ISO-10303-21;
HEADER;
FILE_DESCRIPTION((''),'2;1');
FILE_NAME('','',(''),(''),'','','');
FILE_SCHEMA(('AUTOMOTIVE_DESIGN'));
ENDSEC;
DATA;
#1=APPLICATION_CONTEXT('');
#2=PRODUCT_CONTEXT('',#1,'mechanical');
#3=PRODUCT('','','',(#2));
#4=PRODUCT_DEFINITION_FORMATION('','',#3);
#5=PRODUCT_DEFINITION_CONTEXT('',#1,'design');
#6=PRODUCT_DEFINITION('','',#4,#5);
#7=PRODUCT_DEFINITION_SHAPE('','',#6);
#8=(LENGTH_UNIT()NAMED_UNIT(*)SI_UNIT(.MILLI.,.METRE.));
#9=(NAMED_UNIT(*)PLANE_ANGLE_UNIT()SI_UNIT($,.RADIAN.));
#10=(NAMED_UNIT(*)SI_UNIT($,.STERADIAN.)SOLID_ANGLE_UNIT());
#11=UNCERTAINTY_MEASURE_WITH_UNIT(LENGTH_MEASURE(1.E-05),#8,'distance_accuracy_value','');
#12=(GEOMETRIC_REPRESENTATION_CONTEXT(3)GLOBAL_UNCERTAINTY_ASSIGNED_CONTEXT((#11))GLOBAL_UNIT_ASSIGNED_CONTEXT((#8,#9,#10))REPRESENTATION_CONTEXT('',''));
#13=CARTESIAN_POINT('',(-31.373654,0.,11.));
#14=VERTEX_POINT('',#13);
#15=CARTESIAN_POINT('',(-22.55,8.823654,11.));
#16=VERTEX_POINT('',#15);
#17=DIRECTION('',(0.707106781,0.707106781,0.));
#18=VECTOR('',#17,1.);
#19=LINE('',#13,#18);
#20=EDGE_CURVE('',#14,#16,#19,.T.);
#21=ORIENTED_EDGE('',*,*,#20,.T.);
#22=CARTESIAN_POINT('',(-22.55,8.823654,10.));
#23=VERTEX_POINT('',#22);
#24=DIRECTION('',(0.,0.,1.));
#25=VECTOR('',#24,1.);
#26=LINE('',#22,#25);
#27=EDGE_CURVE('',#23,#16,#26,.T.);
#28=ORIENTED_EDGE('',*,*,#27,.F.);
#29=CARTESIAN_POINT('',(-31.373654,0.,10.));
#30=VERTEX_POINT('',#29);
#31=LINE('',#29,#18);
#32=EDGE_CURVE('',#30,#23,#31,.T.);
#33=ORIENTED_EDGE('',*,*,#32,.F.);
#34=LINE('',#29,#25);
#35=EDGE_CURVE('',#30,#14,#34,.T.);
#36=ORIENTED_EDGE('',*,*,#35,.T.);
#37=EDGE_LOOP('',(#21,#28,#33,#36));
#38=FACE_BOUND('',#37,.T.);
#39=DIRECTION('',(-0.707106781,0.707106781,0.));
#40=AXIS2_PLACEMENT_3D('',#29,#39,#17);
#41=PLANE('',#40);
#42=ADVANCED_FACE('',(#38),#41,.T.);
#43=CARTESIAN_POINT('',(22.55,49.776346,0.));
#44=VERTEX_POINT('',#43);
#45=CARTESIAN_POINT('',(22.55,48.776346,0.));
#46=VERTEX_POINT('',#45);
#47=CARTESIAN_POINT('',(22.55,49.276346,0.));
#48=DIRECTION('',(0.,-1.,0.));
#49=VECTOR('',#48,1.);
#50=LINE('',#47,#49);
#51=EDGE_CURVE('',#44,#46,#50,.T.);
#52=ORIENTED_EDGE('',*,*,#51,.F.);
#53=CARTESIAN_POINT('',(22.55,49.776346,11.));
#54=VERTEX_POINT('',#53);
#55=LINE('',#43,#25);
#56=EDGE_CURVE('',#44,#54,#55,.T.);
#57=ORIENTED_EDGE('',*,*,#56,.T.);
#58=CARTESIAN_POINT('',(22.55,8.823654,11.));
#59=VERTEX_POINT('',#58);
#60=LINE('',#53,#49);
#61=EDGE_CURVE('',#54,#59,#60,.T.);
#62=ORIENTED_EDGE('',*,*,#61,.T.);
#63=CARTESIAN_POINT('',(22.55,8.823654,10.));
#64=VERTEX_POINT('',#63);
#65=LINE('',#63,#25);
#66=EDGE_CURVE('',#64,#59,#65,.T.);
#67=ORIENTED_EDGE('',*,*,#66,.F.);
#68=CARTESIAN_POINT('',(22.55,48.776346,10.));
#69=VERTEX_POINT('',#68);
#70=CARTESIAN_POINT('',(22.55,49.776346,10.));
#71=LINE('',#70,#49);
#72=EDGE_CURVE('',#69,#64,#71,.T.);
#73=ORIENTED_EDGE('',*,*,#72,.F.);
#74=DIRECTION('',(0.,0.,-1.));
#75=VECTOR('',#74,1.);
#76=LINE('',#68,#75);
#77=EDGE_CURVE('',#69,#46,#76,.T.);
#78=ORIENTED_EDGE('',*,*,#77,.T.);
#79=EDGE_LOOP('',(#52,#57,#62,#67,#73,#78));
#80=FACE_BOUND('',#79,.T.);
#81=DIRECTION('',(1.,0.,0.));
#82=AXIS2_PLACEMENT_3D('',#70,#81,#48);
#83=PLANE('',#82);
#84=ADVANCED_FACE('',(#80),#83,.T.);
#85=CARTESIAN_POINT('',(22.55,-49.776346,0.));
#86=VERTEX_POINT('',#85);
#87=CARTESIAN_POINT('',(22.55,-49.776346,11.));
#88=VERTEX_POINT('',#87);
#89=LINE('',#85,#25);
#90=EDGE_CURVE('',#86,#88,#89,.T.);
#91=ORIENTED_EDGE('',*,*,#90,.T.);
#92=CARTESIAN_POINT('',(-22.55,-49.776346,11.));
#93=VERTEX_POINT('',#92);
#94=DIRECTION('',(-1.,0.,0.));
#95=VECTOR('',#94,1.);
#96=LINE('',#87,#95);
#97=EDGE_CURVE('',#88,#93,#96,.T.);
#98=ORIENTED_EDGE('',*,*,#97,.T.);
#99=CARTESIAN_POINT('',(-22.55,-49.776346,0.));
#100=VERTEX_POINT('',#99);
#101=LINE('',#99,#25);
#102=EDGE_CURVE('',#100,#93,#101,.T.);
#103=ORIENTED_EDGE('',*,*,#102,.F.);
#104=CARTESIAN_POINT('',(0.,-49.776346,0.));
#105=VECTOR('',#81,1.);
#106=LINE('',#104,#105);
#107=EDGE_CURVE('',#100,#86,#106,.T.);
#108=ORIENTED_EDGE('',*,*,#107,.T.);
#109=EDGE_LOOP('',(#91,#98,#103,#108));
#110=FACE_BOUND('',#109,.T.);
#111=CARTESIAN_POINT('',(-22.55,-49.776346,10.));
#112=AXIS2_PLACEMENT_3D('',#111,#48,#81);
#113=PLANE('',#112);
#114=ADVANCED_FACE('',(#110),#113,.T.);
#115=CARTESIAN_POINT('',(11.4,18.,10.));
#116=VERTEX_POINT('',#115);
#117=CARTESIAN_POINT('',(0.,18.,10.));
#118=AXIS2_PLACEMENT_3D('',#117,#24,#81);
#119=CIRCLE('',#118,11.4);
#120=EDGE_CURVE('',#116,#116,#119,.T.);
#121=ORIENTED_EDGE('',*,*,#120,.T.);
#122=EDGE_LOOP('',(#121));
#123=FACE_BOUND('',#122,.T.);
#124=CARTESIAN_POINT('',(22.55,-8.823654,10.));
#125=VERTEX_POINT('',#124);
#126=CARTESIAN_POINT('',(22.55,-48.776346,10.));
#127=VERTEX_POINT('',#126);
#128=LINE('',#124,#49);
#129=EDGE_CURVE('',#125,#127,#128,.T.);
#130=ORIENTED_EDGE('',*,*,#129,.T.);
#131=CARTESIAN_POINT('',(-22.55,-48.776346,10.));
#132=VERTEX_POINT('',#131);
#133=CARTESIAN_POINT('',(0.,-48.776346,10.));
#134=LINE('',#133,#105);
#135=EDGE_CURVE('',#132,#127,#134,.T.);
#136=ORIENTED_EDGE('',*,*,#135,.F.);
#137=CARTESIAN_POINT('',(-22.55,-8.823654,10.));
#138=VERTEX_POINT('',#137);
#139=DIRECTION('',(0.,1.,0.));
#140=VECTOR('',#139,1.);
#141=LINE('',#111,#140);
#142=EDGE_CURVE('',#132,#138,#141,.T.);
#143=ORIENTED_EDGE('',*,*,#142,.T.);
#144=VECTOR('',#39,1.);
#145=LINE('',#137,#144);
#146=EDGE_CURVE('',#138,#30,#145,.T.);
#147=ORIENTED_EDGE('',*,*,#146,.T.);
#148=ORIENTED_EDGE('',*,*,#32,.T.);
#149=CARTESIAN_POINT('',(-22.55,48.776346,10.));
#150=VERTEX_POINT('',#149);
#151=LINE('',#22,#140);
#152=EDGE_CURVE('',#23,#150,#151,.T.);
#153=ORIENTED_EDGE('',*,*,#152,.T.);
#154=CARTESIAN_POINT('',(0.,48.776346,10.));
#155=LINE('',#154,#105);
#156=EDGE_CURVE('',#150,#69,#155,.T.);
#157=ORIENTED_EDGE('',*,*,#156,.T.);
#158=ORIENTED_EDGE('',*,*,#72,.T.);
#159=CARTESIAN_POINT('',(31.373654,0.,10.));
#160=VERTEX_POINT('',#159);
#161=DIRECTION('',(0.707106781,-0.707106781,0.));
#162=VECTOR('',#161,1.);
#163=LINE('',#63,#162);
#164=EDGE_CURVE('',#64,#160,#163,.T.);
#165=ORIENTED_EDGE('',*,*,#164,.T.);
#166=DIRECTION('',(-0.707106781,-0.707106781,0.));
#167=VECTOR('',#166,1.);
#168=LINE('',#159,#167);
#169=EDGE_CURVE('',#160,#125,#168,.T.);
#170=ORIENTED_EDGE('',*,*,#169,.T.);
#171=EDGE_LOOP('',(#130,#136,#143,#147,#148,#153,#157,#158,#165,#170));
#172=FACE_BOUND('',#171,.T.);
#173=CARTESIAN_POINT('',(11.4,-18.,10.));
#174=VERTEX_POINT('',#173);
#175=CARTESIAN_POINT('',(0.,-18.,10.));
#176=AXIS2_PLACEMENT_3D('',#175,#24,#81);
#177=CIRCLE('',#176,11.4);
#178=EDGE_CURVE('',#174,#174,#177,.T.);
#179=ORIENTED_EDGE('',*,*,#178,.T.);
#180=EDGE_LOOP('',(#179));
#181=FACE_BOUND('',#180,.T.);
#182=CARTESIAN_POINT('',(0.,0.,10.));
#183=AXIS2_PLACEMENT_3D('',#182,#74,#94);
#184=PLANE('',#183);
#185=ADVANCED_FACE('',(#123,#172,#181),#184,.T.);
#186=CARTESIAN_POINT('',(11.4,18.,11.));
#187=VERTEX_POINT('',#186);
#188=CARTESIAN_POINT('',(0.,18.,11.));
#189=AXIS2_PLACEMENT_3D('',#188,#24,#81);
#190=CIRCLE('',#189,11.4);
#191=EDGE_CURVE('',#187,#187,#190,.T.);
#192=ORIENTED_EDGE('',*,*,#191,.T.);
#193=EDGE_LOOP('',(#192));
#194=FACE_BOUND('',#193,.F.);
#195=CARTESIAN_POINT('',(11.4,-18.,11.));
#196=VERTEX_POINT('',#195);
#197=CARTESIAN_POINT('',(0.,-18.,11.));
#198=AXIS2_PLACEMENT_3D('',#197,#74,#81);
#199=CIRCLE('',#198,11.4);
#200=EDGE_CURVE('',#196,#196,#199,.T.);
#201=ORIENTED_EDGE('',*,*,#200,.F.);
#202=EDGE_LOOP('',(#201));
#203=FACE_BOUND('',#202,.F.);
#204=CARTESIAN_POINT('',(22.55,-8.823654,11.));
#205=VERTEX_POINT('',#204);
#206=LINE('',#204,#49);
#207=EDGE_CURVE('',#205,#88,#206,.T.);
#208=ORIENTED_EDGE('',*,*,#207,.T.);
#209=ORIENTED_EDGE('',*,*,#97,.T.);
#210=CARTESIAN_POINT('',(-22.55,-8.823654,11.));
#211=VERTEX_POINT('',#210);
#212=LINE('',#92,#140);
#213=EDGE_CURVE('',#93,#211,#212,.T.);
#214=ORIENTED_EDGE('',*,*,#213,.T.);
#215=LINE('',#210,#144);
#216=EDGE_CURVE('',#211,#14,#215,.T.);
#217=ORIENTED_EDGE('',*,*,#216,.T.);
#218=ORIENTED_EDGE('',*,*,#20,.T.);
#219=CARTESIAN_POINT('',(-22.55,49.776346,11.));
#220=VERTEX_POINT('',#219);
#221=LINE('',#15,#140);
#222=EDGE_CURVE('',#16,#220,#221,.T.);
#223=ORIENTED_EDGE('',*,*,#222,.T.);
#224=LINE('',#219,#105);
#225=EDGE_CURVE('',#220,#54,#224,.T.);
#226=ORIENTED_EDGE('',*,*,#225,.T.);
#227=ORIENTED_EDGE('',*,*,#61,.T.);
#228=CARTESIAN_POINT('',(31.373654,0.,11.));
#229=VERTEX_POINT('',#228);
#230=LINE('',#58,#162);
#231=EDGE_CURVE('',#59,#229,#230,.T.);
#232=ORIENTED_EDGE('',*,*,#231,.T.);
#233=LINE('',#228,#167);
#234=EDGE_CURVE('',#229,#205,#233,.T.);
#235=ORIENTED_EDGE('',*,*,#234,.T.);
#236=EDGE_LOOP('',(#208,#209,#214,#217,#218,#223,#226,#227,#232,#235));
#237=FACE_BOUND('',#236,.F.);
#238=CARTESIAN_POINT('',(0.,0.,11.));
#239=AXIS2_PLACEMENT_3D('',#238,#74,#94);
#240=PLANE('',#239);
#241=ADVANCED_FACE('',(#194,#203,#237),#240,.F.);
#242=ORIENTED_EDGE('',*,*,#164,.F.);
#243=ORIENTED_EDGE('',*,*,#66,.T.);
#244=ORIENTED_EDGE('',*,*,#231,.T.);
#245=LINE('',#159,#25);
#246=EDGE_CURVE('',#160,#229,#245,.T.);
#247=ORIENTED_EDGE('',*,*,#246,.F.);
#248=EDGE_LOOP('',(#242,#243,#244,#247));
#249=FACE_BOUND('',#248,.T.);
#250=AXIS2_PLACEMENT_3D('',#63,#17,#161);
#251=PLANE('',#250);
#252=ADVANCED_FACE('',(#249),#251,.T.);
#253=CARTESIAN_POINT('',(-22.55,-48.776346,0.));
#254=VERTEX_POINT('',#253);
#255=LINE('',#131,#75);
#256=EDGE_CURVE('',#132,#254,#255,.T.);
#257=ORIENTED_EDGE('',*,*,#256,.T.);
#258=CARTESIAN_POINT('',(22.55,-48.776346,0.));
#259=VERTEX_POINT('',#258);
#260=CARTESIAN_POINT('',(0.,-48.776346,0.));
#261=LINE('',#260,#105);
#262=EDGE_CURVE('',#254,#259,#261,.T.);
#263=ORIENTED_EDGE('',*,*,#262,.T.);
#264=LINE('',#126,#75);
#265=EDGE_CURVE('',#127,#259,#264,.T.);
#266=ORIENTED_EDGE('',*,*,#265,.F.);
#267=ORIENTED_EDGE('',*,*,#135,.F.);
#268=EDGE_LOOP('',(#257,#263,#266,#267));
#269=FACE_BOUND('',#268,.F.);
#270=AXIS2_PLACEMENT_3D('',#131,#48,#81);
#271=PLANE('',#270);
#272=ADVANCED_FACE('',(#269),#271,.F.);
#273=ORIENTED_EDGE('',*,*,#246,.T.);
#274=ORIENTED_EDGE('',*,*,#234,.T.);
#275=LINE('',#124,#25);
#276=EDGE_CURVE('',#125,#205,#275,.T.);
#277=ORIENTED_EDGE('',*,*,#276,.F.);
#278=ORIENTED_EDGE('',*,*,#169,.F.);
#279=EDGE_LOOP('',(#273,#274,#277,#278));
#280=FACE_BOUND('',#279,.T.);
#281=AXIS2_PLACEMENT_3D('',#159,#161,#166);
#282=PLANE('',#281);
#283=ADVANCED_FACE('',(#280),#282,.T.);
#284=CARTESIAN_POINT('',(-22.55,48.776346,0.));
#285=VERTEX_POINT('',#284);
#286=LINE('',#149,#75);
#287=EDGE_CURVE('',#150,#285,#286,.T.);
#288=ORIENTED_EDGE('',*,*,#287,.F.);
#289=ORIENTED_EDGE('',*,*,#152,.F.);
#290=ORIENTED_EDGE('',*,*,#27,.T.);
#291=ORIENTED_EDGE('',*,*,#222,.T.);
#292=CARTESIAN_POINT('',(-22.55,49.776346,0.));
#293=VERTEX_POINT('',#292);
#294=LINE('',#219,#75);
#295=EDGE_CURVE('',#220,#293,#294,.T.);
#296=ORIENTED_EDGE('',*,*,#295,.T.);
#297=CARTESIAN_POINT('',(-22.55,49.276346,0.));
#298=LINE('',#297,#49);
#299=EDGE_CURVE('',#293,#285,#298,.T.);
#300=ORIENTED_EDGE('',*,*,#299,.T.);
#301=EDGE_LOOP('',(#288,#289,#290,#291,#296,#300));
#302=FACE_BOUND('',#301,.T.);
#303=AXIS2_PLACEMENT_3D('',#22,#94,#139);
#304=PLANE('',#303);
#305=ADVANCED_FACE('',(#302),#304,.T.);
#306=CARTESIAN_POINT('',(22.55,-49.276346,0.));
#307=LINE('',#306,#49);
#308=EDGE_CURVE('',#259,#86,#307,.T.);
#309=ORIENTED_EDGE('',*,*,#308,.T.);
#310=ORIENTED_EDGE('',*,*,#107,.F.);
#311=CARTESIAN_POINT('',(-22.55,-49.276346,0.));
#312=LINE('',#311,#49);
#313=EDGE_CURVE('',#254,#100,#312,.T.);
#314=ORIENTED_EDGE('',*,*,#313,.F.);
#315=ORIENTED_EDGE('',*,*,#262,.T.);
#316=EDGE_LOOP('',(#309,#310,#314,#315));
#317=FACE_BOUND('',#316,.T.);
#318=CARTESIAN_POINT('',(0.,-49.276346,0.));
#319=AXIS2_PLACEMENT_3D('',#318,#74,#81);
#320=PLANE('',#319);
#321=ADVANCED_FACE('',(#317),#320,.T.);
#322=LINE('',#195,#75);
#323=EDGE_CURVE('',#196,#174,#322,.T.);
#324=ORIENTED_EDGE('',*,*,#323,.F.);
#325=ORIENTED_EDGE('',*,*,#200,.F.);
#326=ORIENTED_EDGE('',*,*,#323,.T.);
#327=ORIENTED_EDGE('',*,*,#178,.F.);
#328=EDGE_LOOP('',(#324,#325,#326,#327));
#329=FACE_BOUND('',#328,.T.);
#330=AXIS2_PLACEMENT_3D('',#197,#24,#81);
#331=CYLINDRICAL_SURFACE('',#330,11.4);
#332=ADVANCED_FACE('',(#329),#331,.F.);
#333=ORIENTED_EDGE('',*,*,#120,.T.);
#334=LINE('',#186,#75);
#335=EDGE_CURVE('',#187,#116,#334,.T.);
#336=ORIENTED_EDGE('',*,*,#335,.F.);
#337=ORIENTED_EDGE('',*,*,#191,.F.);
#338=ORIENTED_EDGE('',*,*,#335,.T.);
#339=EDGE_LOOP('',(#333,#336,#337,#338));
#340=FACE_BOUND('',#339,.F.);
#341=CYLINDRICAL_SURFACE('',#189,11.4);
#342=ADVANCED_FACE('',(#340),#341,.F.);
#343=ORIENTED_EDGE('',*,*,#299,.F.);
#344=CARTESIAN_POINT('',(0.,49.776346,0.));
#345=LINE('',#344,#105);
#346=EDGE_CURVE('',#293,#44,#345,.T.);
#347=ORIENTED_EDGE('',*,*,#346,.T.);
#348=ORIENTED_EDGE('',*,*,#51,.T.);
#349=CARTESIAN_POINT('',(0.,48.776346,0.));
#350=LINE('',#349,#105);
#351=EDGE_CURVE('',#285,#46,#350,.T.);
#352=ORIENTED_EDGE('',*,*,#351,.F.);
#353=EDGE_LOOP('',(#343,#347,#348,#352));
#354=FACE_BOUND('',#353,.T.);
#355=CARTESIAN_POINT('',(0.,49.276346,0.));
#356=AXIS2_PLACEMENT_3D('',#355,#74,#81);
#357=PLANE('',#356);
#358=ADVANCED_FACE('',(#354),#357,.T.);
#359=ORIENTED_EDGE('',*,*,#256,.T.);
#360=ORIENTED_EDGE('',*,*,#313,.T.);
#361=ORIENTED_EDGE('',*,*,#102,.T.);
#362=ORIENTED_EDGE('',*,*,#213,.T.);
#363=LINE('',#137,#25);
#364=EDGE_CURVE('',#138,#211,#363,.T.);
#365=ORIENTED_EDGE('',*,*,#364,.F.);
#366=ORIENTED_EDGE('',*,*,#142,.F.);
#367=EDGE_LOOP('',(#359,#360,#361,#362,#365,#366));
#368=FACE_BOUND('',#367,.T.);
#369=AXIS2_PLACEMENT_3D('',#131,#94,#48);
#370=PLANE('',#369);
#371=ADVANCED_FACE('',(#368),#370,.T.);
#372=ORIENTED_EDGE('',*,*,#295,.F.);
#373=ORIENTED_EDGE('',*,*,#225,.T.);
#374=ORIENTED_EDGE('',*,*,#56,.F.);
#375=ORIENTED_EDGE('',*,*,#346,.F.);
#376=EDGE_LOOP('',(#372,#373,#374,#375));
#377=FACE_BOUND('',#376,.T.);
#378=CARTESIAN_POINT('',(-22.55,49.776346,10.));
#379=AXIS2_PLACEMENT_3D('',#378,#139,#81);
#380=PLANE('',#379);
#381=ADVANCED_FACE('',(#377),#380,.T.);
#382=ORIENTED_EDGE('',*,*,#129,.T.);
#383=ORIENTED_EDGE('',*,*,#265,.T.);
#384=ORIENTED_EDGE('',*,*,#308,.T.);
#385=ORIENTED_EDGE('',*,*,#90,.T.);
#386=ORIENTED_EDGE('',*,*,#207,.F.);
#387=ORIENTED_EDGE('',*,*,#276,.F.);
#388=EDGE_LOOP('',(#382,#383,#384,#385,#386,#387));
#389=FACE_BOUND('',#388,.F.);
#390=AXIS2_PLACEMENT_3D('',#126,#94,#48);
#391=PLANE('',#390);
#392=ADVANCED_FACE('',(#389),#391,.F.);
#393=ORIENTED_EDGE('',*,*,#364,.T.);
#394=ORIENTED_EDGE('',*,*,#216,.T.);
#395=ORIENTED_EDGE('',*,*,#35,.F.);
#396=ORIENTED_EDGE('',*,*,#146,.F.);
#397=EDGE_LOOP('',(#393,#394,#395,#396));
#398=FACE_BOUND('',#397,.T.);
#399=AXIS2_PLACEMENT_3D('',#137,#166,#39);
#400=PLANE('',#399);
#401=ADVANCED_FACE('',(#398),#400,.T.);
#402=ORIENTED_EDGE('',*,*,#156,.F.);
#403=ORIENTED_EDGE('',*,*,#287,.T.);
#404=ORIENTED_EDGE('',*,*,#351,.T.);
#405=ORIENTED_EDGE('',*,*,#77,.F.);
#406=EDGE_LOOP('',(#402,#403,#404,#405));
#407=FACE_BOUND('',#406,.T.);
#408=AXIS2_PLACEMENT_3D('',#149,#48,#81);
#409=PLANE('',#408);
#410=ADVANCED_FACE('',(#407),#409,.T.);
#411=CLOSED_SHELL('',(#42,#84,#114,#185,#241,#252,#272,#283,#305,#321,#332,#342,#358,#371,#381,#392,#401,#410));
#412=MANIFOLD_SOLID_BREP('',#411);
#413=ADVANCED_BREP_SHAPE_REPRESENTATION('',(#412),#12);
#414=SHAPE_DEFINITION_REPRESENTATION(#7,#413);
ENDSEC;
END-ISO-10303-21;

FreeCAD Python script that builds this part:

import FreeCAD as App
import Part
import Sketcher
from FreeCAD import Vector
Q = App.Units.Quantity

doc = App.newDocument("Part")
params = doc.addObject("Spreadsheet::Sheet", "Params")
for row, (alias, value) in enumerate([
    ("sketch1_width", "45.1 mm"),
    ("pad1_length", "1 mm"),
    ("sketch2_height", "1 mm"),
    ("sketch2_width", "45.1 mm"),
    ("pad2_length", "10 mm"),
    ("sketch3_diameter", "22.8 mm"),
    ("pocket1_length", "5 mm"),
], start=1):
    params.set(f"A{row}", alias)
    params.set(f"B{row}", "=" + value)
    params.setAlias(f"B{row}", alias)

body = doc.addObject("PartDesign::Body", "Body")

sketch1 = doc.addObject("Sketcher::SketchObject", "Sketch")
body.addObject(sketch1)
sketch1.AttachmentSupport = (doc.XY_Plane, [""])
sketch1.MapMode = "FlatFace"
sketch1.addGeometry([
    Part.LineSegment(Vector(22.55, 49.776346, 0), Vector(-22.55, 49.776346, 0)),
    Part.LineSegment(Vector(-22.55, 49.776346, 0), Vector(-22.55, 8.823654, 0)),
    Part.LineSegment(Vector(-22.55, 8.823654, 0), Vector(-31.373654, 0, 0)),
    Part.LineSegment(Vector(-31.373654, 0, 0), Vector(-22.55, -8.823654, 0)),
    Part.LineSegment(Vector(-22.55, -8.823654, 0), Vector(-22.55, -49.776346, 0)),
    Part.LineSegment(Vector(-22.55, -49.776346, 0), Vector(22.55, -49.776346, 0)),
    Part.LineSegment(Vector(22.55, -49.776346, 0), Vector(22.55, -8.823654, 0)),
    Part.LineSegment(Vector(22.55, -8.823654, 0), Vector(31.373654, 0, 0)),
    Part.LineSegment(Vector(31.373654, 0, 0), Vector(22.55, 8.823654, 0)),
    Part.LineSegment(Vector(22.55, 8.823654, 0), Vector(22.55, 49.776346, 0)),
], False)
sketch1.addConstraint([
    Sketcher.Constraint("Coincident", 0, 2, 1, 1),
    Sketcher.Constraint("Coincident", 1, 2, 2, 1),
    Sketcher.Constraint("Coincident", 2, 2, 3, 1),
    Sketcher.Constraint("Coincident", 3, 2, 4, 1),
    Sketcher.Constraint("Coincident", 4, 2, 5, 1),
    Sketcher.Constraint("Coincident", 5, 2, 6, 1),
    Sketcher.Constraint("Coincident", 6, 2, 7, 1),
    Sketcher.Constraint("Coincident", 7, 2, 8, 1),
    Sketcher.Constraint("Coincident", 8, 2, 9, 1),
    Sketcher.Constraint("Coincident", 9, 2, 0, 1),
    Sketcher.Constraint("Horizontal", 0),
    Sketcher.Constraint("Vertical", 1),
    Sketcher.Constraint("Vertical", 4),
    Sketcher.Constraint("Horizontal", 5),
    Sketcher.Constraint("Vertical", 6),
    Sketcher.Constraint("Vertical", 9),
    Sketcher.Constraint("Symmetric", 0, 2, 5, 2, -1, 1),
    Sketcher.Constraint("Symmetric", 2, 2, 7, 2, -1, 1),
    Sketcher.Constraint("Symmetric", 3, 2, 8, 2, -1, 1),
    Sketcher.Constraint("Symmetric", 3, 2, 6, 2, -2),
    Sketcher.Constraint("PointOnObject", 2, 2, -1),
    Sketcher.Constraint("Perpendicular", 2, 3),
    Sketcher.Constraint("Perpendicular", 3, 7),
    Sketcher.Constraint("DistanceX", 0, 2, 0, 1, Q("45.1 mm")),
    Sketcher.Constraint("DistanceY", 3, 2, 0, 2, Q("58.6 mm")),
    Sketcher.Constraint("Distance", 2, Q("12.478531 mm")),
])
sketch1.setExpression("Constraints[23]", "Params.sketch1_width")
pad1 = doc.addObject("PartDesign::Pad", "Pad")
body.addObject(pad1)
pad1.Profile = sketch1
pad1.setExpression("Length", "Params.pad1_length")

sketch2 = doc.addObject("Sketcher::SketchObject", "Sketch001")
body.addObject(sketch2)
sketch2.AttachmentSupport = (doc.XY_Plane, [""])
sketch2.MapMode = "FlatFace"
sketch2.addGeometry([
    Part.LineSegment(Vector(-22.55, -49.776346, 0), Vector(-22.55, -48.776346, 0)),
    Part.LineSegment(Vector(-22.55, -48.776346, 0), Vector(22.55, -48.776346, 0)),
    Part.LineSegment(Vector(22.55, -48.776346, 0), Vector(22.55, -49.776346, 0)),
    Part.LineSegment(Vector(22.55, -49.776346, 0), Vector(-22.55, -49.776346, 0)),
    Part.LineSegment(Vector(-22.55, 48.776346, 0), Vector(-22.55, 49.776346, 0)),
    Part.LineSegment(Vector(-22.55, 49.776346, 0), Vector(22.55, 49.776346, 0)),
    Part.LineSegment(Vector(22.55, 49.776346, 0), Vector(22.55, 48.776346, 0)),
    Part.LineSegment(Vector(22.55, 48.776346, 0), Vector(-22.55, 48.776346, 0)),
], False)
sketch2.addConstraint([
    Sketcher.Constraint("Coincident", 0, 2, 1, 1),
    Sketcher.Constraint("Coincident", 1, 2, 2, 1),
    Sketcher.Constraint("Coincident", 2, 2, 3, 1),
    Sketcher.Constraint("Coincident", 3, 2, 0, 1),
    Sketcher.Constraint("Coincident", 4, 2, 5, 1),
    Sketcher.Constraint("Coincident", 5, 2, 6, 1),
    Sketcher.Constraint("Coincident", 6, 2, 7, 1),
    Sketcher.Constraint("Coincident", 7, 2, 4, 1),
    Sketcher.Constraint("Vertical", 0),
    Sketcher.Constraint("Horizontal", 1),
    Sketcher.Constraint("Vertical", 2),
    Sketcher.Constraint("Horizontal", 3),
    Sketcher.Constraint("Vertical", 4),
    Sketcher.Constraint("Horizontal", 5),
    Sketcher.Constraint("Vertical", 6),
    Sketcher.Constraint("Horizontal", 7),
    Sketcher.Constraint("Symmetric", 2, 2, 4, 2, -1, 1),
    Sketcher.Constraint("Symmetric", 0, 2, 6, 2, -1, 1),
    Sketcher.Constraint("Vertical", 3, 2, 4, 2),
    Sketcher.Constraint("DistanceY", 0, 1, 0, 2, Q("1 mm")),
    Sketcher.Constraint("DistanceX", 1, 1, 1, 2, Q("45.1 mm")),
    Sketcher.Constraint("DistanceY", 0, 2, 4, 2, Q("98.552692 mm")),
])
sketch2.setExpression("Constraints[19]", "Params.sketch2_height")
sketch2.setExpression("Constraints[20]", "Params.sketch2_width")
pad2 = doc.addObject("PartDesign::Pad", "Pad001")
body.addObject(pad2)
pad2.Profile = sketch2
pad2.setExpression("Length", "Params.pad2_length")
pad2.Reversed = True

sketch3 = doc.addObject("Sketcher::SketchObject", "Sketch002")
body.addObject(sketch3)
sketch3.AttachmentSupport = (doc.XY_Plane, [""])
sketch3.MapMode = "FlatFace"
sketch3.AttachmentOffset = App.Placement(Vector(0, 0, 1), App.Rotation())
sketch3.addGeometry(Part.Circle(Vector(0, 18, 0), Vector(0, 0, 1), 11.4), False)
sketch3.addConstraint([
    Sketcher.Constraint("PointOnObject", 0, 3, -2),
    Sketcher.Constraint("Diameter", 0, Q("22.8 mm")),
    Sketcher.Constraint("DistanceY", -1, 1, 0, 3, Q("18 mm")),
])
sketch3.setExpression("Constraints[1]", "Params.sketch3_diameter")
pocket1 = doc.addObject("PartDesign::Pocket", "Pocket")
body.addObject(pocket1)
pocket1.Profile = sketch3
pocket1.setExpression("Length", "Params.pocket1_length")
doc.recompute()

mirrored = doc.addObject("PartDesign::Mirrored", "Mirrored")
body.addObject(mirrored)
mirrored.Originals = [pocket1]
mirrored.MirrorPlane = (doc.XZ_Plane, [""])
body.Tip = mirrored
body2 = doc.addObject("PartDesign::Body", "Body001")
doc.recompute()

body.Placement = App.Placement(Vector(0, 0, 10), App.Rotation(Vector(0, 0, 1), 0))
boolean = doc.addObject("PartDesign::Boolean", "Boolean")
body2.addObject(boolean)
boolean.Type = "Fuse"
boolean.addObjects([body])

doc.recompute()
